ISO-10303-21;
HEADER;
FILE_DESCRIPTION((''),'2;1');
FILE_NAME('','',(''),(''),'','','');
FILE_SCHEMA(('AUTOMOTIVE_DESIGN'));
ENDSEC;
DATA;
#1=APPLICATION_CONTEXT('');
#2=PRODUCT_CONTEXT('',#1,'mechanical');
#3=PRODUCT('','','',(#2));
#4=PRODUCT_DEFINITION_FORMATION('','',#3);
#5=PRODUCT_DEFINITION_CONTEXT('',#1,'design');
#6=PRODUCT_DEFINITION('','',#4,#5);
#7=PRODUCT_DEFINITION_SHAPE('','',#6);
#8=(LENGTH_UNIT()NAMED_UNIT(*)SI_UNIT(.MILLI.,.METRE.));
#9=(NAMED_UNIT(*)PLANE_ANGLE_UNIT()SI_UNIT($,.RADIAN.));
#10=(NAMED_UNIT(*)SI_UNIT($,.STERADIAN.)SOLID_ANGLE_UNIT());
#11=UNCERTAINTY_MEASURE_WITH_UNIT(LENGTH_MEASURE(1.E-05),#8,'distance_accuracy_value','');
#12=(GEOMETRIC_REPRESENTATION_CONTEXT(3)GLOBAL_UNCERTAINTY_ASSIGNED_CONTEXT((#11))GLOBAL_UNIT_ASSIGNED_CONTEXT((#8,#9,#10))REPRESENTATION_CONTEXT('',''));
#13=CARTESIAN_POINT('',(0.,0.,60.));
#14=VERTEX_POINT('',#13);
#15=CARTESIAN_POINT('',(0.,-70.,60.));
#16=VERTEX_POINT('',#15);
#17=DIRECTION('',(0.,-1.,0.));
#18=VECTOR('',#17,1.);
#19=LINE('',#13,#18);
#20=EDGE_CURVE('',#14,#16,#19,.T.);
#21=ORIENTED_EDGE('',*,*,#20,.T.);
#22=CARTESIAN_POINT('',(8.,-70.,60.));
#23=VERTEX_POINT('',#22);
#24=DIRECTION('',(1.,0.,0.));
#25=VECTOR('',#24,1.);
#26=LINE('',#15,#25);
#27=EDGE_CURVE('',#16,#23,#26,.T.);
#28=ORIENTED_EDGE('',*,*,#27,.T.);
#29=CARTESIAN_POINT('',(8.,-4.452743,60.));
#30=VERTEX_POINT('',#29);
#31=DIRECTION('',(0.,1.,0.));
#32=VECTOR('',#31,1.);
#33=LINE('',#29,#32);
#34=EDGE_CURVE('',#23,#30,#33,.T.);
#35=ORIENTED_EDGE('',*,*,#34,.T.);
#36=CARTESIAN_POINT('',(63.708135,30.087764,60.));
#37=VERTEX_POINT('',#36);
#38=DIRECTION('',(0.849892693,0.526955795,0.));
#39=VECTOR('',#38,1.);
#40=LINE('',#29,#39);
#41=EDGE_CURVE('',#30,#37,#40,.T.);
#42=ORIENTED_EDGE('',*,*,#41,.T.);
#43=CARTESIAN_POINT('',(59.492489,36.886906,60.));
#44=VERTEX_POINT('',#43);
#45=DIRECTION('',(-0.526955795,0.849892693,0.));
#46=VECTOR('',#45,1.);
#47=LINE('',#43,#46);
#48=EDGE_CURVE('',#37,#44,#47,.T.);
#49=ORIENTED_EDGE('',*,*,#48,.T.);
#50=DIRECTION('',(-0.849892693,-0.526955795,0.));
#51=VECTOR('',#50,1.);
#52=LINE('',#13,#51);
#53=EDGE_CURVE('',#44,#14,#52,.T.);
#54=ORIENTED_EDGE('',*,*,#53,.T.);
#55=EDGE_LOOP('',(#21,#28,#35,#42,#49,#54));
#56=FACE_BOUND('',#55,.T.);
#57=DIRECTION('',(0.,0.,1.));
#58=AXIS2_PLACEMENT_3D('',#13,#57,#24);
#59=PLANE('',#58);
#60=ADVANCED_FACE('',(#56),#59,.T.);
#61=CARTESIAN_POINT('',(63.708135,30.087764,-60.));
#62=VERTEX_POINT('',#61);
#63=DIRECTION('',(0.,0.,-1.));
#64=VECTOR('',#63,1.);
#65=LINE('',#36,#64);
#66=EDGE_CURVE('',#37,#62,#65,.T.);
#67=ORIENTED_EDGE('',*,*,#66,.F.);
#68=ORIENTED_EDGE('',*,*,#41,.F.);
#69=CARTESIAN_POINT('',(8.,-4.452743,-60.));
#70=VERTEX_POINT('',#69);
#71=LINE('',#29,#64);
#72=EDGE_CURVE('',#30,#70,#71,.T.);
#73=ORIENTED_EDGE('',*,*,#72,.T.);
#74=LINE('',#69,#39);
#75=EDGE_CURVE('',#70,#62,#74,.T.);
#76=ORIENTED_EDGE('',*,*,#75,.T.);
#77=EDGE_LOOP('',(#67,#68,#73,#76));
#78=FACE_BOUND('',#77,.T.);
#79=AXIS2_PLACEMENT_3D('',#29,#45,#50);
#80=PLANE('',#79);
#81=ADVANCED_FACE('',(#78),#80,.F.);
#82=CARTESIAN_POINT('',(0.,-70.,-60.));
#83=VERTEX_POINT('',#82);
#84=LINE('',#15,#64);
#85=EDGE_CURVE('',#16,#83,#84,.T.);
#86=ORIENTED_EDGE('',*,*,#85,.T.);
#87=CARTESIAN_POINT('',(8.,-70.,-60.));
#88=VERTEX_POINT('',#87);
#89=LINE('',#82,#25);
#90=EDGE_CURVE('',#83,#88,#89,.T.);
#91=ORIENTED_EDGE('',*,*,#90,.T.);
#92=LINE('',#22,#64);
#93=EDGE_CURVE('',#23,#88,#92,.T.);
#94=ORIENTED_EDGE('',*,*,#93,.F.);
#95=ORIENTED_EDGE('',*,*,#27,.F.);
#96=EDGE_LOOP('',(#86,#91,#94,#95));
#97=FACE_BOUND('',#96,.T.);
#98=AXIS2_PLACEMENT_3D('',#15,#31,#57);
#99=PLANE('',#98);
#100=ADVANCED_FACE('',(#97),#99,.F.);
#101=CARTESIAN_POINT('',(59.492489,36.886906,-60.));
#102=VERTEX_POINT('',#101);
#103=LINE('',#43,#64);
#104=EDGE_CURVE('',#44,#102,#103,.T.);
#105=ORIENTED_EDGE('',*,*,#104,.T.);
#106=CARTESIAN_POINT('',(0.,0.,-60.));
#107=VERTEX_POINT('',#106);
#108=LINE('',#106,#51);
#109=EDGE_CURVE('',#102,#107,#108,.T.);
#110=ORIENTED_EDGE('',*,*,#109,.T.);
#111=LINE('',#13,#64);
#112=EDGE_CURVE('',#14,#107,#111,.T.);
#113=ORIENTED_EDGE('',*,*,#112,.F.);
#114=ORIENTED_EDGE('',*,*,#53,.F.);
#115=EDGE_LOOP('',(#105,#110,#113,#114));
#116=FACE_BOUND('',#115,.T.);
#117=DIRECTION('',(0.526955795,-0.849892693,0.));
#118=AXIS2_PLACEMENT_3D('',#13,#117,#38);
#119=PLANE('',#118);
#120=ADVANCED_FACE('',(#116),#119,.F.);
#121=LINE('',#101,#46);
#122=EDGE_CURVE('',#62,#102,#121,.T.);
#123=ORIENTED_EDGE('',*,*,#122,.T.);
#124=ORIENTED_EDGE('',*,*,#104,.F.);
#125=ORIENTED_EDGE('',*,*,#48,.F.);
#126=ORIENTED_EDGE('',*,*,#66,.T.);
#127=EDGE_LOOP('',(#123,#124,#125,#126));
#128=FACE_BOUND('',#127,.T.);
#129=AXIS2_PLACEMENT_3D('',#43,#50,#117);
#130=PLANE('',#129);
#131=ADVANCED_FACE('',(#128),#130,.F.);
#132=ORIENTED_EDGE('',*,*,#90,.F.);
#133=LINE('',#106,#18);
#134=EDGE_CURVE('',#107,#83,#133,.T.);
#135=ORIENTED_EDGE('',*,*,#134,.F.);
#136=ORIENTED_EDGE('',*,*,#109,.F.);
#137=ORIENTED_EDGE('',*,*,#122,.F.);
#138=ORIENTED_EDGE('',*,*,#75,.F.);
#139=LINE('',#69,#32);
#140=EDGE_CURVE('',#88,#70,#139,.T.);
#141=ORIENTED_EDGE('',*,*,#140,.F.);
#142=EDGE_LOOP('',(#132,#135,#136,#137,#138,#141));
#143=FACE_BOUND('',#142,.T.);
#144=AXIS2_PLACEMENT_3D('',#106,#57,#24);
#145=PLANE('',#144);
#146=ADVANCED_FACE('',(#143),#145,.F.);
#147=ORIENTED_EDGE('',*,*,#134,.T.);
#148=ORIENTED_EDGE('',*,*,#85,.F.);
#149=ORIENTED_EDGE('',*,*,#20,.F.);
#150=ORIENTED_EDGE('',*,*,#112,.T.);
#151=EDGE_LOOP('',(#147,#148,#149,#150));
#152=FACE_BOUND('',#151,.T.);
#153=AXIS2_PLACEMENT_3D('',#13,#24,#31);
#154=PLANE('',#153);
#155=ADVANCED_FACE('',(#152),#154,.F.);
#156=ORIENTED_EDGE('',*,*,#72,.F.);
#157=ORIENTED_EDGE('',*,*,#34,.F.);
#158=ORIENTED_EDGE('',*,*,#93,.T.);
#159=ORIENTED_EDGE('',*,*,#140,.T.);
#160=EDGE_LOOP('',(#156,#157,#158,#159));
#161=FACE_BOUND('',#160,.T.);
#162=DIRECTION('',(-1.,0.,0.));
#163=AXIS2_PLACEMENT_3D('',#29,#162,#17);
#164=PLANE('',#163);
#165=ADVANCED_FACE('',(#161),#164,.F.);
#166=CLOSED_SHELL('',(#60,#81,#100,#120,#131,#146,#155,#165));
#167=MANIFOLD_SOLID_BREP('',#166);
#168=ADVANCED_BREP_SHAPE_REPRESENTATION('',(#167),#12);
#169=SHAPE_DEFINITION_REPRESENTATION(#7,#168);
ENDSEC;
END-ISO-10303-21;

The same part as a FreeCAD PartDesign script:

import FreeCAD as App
import Part
import Sketcher
Q = App.Units.Quantity


def add_polygon(sketch, points):
    """Adds a closed chain of lines whose ends are joined by coincident constraints."""
    first, n = sketch.GeometryCount, len(points)
    for a, b in zip(points, points[1:] + points[:1]):
        sketch.addGeometry(Part.LineSegment(App.Vector(*a, 0), App.Vector(*b, 0)), False)
    for i in range(n):
        sketch.addConstraint(Sketcher.Constraint("Coincident", first + i, 2, first + (i + 1) % n, 1))

doc = App.newDocument("Part")
params = doc.addObject("Spreadsheet::Sheet", "Params")
for row, (alias, value) in enumerate([
    ("sketch1_width", "8 mm"),
    ("sketch1_height", "70 mm"),
    ("sketch1_length", "70 mm"),
    ("sketch1_length2", "8 mm"),
    ("pad1_length", "120 mm"),
], start=1):
    params.set(f"A{row}", alias)
    params.set(f"B{row}", "=" + value)
    params.setAlias(f"B{row}", alias)

body = doc.addObject("PartDesign::Body", "Body")

# Sketch on XY plane
sketch1 = body.newObject("Sketcher::SketchObject", "Sketch")
sketch1.AttachmentSupport = (doc.getObject("XY_Plane"), [""])
sketch1.MapMode = "FlatFace"
add_polygon(sketch1, [(59, 37), (0, 0), (0, -70), (8, -70), (8, -4), (64, 30)])  # lines 0-5
sketch1.addConstraint(Sketcher.Constraint("Vertical", 1))
sketch1.addConstraint(Sketcher.Constraint("Horizontal", 2))
sketch1.addConstraint(Sketcher.Constraint("Vertical", 3))
sketch1.addConstraint(Sketcher.Constraint("Coincident", 0, 2, -1, 1))
sketch1.addConstraint(Sketcher.Constraint("Parallel", 0, 4))
sketch1.addConstraint(Sketcher.Constraint("Perpendicular", 4, 5))
sketch1.addConstraint(Sketcher.Constraint("DistanceX", 2, 1, 2, 2, 8.0))
sketch1.addConstraint(Sketcher.Constraint("DistanceY", 1, 2, 1, 1, 70.0))
sketch1.addConstraint(Sketcher.Constraint("Distance", 0, 70.0))
sketch1.addConstraint(Sketcher.Constraint("Distance", 5, 8.0))
sketch1.addConstraint(Sketcher.Constraint("Angle", 0, Q("-148.2 deg")))
sketch1.setExpression("Constraints[12]", "Params.sketch1_width")
sketch1.setExpression("Constraints[13]", "Params.sketch1_height")
sketch1.setExpression("Constraints[14]", "Params.sketch1_length")
sketch1.setExpression("Constraints[15]", "Params.sketch1_length2")
pad1 = body.newObject("PartDesign::Pad", "Pad")
pad1.Profile = sketch1
pad1.setExpression("Length", "Params.pad1_length")
pad1.Midplane = True

doc.recompute()
